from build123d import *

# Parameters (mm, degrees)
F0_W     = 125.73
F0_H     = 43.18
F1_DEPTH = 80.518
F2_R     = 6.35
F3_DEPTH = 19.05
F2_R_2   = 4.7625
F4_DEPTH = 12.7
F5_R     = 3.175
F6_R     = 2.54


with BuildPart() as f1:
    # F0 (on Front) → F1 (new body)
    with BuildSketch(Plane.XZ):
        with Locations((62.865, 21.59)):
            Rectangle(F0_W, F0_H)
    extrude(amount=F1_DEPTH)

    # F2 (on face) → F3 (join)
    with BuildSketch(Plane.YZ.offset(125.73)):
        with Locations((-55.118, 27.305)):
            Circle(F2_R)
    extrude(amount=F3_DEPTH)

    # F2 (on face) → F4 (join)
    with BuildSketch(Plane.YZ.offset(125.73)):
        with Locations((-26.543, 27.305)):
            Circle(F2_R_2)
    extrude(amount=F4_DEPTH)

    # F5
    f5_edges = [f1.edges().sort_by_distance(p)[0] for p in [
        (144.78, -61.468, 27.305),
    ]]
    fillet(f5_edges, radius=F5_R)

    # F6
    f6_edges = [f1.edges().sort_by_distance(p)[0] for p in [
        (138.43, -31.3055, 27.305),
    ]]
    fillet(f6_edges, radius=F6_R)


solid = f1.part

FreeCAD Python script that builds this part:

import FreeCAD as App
import Part
import Sketcher
from FreeCAD import Vector
Q = App.Units.Quantity


def edges_at(feature, points):
    """Names of the edges that pass closest to the given points."""
    edges = feature.Shape.Edges
    near = lambda p: min(range(len(edges)), key=lambda i: edges[i].distToShape(Part.Vertex(*p))[0])
    return sorted({f"Edge{near(p) + 1}" for p in points})


def add_polygon(sketch, points):
    """Adds a closed chain of lines whose ends are joined by coincident constraints."""
    first, n = sketch.GeometryCount, len(points)
    for a, b in zip(points, points[1:] + points[:1]):
        sketch.addGeometry(Part.LineSegment(App.Vector(*a, 0), App.Vector(*b, 0)), False)
    for i in range(n):
        sketch.addConstraint(Sketcher.Constraint("Coincident", first + i, 2, first + (i + 1) % n, 1))

doc = App.newDocument("Part")
body = doc.addObject("PartDesign::Body", "Body")

sketch1 = body.newObject("Sketcher::SketchObject", "Sketch")
sketch1.AttachmentSupport = (doc.getObject("XZ_Plane"), [""])
sketch1.MapMode = "FlatFace"
add_polygon(sketch1, [(0, 43), (0, 0), (126, 0), (126, 43)])
sketch1.addConstraint([
    Sketcher.Constraint("Vertical", 0),
    Sketcher.Constraint("Horizontal", 1),
    Sketcher.Constraint("Vertical", 2),
    Sketcher.Constraint("Horizontal", 3),
    Sketcher.Constraint("Coincident", 0, 2, -1, 1),
    Sketcher.Constraint("DistanceY", 0, 2, 0, 1, Q("1.7 in")),
    Sketcher.Constraint("DistanceX", 1, 1, 1, 2, Q("4.95 in")),
])
pad1 = body.newObject("PartDesign::Pad", "Pad")
pad1.Profile = sketch1
pad1.Length = Q("3.17 in")

sketch2 = body.newObject("Sketcher::SketchObject", "Sketch001")
sketch2.AttachmentSupport = (doc.getObject("YZ_Plane"), [""])
sketch2.MapMode = "FlatFace"
sketch2.AttachmentOffset = App.Placement(Vector(0, 0, 4.95 * 25.4), App.Rotation())
sketch2.addGeometry(Part.Circle(Vector(-55, 27, 0), Vector(0, 0, 1), 6), False)
sketch2.addConstraint([
    Sketcher.Constraint("Diameter", 0, Q("0.5 in")),
    Sketcher.Constraint("DistanceX", 0, 3, -1, 1, Q("2.17 in")),
    Sketcher.Constraint("DistanceY", -1, 1, 0, 3, Q("1.075 in")),
])
pad2 = body.newObject("PartDesign::Pad", "Pad001")
pad2.Profile = sketch2
pad2.Length = Q("0.75 in")

sketch3 = body.newObject("Sketcher::SketchObject", "Sketch002")
sketch3.AttachmentSupport = (doc.getObject("YZ_Plane"), [""])
sketch3.MapMode = "FlatFace"
sketch3.AttachmentOffset = App.Placement(Vector(0, 0, 4.95 * 25.4), App.Rotation())
sketch3.addGeometry(Part.Circle(Vector(-26.5, 27.3, 0), Vector(0, 0, 1), 4.8), False)
sketch3.addConstraint([
    Sketcher.Constraint("Diameter", 0, Q("0.375 in")),
    Sketcher.Constraint("DistanceX", 0, 3, -1, 1, Q("1.045 in")),
    Sketcher.Constraint("DistanceY", -1, 1, 0, 3, Q("1.075 in")),
])
pad3 = body.newObject("PartDesign::Pad", "Pad002")
pad3.Profile = sketch3
pad3.Length = Q("0.5 in")
doc.recompute()

fillet = body.newObject("PartDesign::Fillet", "Fillet")
fillet.Base = (pad3, edges_at(pad3, [(144.78, -61.468, 27.305)]))
fillet.Radius = Q("0.125 in")
doc.recompute()

fillet2 = body.newObject("PartDesign::Fillet", "Fillet001")
fillet2.Base = (fillet, edges_at(fillet, [(138.43, -31.305, 27.305)]))
fillet2.Radius = Q("0.1 in")

doc.recompute()
